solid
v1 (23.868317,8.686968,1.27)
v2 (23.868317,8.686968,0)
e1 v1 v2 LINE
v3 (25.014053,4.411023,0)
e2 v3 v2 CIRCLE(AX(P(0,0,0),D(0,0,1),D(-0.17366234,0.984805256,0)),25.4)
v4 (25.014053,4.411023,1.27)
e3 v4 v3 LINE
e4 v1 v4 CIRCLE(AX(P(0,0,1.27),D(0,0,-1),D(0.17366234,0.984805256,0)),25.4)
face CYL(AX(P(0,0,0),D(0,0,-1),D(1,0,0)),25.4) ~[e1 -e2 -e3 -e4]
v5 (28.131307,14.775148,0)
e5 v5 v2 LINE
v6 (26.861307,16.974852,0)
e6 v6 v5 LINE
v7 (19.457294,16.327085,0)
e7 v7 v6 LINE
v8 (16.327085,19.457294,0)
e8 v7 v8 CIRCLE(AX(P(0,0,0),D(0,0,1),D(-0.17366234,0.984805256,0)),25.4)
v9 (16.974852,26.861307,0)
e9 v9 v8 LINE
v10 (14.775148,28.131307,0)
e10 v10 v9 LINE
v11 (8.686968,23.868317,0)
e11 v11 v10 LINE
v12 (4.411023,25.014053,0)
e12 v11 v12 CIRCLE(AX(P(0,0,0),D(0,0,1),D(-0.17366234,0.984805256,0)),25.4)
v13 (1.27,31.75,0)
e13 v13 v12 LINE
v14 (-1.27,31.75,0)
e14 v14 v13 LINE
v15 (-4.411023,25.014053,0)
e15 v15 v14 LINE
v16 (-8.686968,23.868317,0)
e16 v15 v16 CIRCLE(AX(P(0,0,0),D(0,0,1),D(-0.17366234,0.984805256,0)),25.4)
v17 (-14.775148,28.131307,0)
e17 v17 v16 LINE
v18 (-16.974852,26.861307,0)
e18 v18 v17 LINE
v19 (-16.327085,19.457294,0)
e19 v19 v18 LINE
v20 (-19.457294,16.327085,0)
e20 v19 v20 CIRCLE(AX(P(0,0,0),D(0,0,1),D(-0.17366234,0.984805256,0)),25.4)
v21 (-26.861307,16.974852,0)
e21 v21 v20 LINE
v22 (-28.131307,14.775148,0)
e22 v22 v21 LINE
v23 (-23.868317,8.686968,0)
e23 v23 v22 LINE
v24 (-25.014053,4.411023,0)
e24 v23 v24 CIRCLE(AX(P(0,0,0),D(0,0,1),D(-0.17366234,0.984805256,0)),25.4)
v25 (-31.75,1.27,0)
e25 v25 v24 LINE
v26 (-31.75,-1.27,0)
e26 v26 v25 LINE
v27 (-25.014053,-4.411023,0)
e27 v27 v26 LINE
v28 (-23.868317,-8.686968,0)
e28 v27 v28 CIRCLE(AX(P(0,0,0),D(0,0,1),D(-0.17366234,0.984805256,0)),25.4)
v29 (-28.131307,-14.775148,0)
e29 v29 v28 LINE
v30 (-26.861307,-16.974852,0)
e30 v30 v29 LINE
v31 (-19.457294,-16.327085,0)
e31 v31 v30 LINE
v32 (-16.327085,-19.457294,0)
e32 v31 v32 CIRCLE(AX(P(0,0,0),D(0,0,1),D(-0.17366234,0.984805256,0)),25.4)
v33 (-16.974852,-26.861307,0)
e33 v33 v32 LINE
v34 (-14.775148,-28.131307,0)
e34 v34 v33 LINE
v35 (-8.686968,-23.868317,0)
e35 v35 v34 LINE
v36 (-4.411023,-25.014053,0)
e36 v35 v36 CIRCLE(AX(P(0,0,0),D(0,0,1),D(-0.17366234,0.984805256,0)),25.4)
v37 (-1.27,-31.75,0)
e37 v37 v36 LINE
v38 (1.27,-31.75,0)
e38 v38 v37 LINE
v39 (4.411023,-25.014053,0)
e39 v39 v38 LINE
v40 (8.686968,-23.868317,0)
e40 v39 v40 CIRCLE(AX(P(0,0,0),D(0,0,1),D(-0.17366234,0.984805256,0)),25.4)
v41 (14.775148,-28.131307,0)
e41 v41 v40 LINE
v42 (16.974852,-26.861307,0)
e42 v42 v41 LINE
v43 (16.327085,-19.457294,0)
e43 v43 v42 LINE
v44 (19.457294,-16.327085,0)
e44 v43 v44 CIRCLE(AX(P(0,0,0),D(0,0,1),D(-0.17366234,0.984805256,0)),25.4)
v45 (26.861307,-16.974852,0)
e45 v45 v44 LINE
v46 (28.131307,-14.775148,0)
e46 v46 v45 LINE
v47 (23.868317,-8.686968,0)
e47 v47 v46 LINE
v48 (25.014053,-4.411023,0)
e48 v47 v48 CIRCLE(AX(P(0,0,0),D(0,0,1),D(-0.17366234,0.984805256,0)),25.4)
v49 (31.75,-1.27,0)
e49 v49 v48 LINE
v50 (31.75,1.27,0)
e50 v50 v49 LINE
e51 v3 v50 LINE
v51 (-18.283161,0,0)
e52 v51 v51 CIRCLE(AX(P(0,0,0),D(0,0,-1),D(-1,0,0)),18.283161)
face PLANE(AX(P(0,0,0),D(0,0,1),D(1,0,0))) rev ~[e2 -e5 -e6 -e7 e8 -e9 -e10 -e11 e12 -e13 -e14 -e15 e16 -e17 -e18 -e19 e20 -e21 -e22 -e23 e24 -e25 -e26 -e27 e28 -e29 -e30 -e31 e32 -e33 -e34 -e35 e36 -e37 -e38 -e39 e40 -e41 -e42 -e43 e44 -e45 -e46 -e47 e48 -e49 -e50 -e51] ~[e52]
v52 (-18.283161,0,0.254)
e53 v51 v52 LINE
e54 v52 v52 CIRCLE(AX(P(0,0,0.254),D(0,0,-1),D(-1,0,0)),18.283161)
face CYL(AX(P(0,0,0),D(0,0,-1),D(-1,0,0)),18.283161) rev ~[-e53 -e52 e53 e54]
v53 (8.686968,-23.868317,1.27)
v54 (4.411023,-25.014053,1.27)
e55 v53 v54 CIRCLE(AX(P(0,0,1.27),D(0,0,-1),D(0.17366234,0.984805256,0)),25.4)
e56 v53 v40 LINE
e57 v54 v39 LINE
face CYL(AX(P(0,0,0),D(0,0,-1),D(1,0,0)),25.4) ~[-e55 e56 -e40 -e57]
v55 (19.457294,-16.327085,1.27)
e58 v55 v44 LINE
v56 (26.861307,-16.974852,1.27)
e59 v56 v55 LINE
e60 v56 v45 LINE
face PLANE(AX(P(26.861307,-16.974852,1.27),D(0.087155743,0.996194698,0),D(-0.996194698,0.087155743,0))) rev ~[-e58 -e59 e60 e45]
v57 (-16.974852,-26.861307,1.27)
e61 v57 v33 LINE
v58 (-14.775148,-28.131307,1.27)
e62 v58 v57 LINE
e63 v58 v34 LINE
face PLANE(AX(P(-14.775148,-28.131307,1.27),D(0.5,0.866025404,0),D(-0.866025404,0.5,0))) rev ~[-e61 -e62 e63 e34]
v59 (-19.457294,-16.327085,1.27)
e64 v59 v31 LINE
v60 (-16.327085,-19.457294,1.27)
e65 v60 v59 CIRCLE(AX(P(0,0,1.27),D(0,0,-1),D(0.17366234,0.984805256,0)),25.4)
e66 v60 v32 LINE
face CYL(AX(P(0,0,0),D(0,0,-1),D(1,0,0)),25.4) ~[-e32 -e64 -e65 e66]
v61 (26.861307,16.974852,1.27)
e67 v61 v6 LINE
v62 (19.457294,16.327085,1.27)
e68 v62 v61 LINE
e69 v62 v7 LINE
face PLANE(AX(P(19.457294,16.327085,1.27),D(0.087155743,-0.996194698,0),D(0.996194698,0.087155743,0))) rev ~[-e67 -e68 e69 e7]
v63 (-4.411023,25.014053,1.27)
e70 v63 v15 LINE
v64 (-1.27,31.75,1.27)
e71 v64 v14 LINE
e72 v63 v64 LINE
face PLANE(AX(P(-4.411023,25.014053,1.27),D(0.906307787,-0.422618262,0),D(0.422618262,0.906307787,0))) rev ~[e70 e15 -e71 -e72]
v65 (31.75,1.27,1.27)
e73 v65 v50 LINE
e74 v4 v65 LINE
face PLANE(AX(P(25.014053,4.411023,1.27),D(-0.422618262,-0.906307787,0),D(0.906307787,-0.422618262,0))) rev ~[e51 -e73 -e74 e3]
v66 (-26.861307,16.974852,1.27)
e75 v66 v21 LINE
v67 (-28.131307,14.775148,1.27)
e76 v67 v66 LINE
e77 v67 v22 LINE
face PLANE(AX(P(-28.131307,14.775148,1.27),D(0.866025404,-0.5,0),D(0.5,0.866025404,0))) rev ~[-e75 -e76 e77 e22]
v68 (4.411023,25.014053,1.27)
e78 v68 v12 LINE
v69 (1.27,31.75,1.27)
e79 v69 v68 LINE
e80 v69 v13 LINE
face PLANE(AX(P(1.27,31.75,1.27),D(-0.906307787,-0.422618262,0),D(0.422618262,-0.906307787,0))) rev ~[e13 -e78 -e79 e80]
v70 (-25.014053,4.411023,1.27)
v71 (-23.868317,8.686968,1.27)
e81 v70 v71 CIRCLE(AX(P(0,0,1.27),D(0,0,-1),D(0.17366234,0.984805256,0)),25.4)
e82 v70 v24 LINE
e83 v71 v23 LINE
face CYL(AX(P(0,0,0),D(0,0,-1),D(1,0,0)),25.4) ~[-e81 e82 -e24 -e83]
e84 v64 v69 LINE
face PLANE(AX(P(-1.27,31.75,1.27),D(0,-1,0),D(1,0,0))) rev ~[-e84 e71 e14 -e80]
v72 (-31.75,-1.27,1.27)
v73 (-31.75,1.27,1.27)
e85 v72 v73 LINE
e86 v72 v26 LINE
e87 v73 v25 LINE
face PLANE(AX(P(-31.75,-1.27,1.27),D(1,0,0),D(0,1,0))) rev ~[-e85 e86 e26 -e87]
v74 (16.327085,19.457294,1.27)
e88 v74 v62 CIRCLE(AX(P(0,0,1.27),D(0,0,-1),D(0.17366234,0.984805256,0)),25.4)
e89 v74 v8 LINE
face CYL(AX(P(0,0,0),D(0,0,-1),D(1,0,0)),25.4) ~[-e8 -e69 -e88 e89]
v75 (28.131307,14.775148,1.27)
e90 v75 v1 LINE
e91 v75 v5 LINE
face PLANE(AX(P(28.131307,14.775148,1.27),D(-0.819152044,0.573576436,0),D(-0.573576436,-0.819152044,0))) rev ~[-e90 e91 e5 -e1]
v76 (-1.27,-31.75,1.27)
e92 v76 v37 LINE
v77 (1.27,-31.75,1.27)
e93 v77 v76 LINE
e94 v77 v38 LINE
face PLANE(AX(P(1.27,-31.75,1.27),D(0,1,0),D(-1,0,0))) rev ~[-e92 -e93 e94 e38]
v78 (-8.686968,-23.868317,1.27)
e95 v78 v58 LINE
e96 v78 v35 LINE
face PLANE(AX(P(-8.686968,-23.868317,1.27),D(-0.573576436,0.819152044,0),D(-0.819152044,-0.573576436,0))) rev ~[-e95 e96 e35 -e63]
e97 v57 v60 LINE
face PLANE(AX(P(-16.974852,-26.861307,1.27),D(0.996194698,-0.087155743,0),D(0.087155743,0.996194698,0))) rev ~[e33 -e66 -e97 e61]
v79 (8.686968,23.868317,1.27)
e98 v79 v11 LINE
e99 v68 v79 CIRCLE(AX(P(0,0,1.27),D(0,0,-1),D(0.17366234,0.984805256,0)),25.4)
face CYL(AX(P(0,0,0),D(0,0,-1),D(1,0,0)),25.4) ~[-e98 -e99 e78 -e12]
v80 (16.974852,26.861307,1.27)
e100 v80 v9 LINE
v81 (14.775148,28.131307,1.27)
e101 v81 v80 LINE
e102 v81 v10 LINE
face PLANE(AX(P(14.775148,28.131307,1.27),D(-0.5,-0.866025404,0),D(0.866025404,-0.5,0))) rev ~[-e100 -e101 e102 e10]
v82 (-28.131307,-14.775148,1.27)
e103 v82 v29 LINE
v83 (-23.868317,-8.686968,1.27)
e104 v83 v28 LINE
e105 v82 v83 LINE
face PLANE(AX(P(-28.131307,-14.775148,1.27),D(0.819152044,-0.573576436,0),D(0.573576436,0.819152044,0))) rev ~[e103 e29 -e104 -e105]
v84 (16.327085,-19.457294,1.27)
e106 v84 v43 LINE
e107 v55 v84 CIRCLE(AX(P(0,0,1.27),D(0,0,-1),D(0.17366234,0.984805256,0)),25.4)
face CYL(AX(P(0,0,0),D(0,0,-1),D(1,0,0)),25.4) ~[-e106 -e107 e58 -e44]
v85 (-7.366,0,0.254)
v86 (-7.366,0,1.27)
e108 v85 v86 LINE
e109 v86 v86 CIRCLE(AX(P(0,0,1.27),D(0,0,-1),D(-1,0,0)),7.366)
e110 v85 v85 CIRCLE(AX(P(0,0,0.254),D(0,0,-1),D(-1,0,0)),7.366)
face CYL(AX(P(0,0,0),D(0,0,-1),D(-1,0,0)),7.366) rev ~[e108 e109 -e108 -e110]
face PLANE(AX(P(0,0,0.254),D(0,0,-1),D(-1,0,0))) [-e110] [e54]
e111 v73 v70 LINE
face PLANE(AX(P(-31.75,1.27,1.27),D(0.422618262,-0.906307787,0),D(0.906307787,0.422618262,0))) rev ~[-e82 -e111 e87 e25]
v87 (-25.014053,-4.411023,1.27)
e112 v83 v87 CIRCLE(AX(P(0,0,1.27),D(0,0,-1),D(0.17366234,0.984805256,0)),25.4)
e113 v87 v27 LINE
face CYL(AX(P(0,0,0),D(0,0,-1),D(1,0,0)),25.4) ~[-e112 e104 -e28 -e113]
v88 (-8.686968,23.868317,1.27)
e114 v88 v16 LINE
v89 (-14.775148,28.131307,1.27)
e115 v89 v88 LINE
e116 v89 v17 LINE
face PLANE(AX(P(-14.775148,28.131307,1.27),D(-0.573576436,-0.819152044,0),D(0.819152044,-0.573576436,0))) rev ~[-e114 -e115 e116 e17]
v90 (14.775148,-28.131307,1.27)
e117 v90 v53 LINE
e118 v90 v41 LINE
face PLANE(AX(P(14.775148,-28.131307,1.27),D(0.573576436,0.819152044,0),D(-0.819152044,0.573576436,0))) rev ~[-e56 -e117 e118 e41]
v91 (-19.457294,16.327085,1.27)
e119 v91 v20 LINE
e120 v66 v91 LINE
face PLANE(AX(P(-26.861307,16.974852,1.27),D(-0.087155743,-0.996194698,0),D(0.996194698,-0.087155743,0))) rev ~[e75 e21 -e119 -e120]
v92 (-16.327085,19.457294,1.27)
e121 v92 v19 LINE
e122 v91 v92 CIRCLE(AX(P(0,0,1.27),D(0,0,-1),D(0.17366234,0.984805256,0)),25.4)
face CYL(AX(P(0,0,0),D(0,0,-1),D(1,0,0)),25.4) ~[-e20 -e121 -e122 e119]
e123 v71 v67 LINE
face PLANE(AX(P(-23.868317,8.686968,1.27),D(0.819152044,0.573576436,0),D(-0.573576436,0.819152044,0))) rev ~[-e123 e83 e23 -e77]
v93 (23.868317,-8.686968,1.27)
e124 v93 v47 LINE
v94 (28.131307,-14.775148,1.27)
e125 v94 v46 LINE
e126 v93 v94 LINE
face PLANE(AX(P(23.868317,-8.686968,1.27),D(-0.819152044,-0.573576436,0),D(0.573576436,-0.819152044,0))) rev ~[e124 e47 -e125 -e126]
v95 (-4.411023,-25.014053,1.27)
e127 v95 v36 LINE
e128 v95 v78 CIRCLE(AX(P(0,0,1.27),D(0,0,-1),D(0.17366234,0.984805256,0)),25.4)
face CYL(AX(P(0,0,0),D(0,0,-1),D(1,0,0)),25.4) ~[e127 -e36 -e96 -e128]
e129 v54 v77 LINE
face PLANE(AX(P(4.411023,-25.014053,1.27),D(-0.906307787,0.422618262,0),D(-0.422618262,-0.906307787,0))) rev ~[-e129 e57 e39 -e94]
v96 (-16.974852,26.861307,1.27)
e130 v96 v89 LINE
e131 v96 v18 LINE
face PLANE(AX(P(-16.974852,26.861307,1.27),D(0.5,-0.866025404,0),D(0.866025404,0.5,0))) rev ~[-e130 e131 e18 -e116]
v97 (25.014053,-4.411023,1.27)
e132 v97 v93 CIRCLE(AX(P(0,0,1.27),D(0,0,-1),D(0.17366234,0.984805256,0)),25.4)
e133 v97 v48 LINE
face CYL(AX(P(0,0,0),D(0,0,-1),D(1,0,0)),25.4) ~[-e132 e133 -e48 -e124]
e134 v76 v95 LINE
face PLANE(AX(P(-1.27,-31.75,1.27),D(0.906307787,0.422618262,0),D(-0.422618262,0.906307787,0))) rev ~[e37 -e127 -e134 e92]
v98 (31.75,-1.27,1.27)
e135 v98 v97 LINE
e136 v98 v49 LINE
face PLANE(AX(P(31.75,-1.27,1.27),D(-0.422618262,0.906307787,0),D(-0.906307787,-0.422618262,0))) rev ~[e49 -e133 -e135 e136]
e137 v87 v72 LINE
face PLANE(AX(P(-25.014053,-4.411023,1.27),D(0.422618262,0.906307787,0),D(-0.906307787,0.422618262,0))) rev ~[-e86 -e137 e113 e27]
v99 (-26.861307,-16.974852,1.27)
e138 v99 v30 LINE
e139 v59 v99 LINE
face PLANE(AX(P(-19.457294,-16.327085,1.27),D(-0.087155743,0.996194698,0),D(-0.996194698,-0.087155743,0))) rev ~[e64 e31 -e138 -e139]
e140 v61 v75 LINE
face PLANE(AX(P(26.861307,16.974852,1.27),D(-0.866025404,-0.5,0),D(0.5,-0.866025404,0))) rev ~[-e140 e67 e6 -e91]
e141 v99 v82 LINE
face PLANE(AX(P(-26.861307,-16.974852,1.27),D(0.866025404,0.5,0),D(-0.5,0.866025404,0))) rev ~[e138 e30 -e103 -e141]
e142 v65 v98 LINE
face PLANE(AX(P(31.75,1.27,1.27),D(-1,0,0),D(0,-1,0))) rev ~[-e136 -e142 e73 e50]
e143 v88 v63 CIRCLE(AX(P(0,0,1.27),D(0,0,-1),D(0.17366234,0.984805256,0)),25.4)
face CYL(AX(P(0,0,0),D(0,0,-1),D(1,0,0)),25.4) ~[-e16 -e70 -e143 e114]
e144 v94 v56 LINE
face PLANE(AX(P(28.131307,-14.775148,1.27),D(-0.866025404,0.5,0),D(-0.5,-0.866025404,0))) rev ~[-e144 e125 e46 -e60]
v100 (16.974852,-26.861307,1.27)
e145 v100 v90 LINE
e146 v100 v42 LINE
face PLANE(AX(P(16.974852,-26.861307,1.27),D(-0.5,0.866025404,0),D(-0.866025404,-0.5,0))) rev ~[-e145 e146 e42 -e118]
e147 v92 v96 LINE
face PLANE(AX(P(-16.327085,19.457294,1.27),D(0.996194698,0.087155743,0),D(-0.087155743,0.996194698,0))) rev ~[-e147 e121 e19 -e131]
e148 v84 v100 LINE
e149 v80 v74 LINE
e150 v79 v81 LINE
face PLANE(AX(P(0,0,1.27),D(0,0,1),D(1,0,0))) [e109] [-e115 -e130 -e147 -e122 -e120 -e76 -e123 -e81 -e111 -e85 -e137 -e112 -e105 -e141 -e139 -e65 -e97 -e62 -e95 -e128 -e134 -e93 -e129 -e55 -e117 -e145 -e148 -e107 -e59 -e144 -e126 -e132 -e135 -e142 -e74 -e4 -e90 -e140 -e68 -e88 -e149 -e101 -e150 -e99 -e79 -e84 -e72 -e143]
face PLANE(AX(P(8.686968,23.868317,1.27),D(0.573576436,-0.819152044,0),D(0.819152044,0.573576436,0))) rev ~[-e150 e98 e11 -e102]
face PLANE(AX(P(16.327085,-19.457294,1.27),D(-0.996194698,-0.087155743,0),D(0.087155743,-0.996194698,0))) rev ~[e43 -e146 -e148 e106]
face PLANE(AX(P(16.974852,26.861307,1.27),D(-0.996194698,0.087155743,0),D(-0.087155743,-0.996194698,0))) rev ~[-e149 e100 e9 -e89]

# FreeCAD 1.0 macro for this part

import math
import FreeCAD as App
import Part
import Sketcher
from FreeCAD import Vector
Q = App.Units.Quantity

doc = App.newDocument("Part")
body = doc.addObject("PartDesign::Body", "Body")

# Sketch on XY plane
sketch1 = body.newObject("Sketcher::SketchObject", "Sketch")
sketch1.AttachmentSupport = (doc.getObject("XY_Plane"), [""])
sketch1.MapMode = "FlatFace"
sketch1.addGeometry(Part.Circle(Vector(0, 0, 0), Vector(0, 0, 1), 25), False)
sketch1.addConstraint(Sketcher.Constraint("Coincident", 0, 3, -1, 1))
sketch1.addConstraint(Sketcher.Constraint("Diameter", 0, Q("2 in")))
pad1 = body.newObject("PartDesign::Pad", "Pad")
pad1.Profile = sketch1
pad1.Length = Q("0.05 in")

# Sketch on XY plane
sketch2 = body.newObject("Sketcher::SketchObject", "Sketch001")
sketch2.AttachmentSupport = (doc.getObject("XY_Plane"), [""])
sketch2.MapMode = "FlatFace"
sketch2.AttachmentOffset = App.Placement(Vector(0, 0, 0.05 * 25.4), App.Rotation())
sketch2.addGeometry(Part.LineSegment(Vector(1.3, 31.8, 0), Vector(-1.3, 31.8, 0)), False)
sketch2.addGeometry(Part.LineSegment(Vector(-1.3, 31.8, 0), Vector(-4.4, 25, 0)), False)
sketch2.addGeometry(Part.ArcOfCircle(Part.Circle(Vector(0, 0, 0), Vector(0, 0, 1), 25.4), math.radians(80), math.radians(100)), False)
sketch2.addGeometry(Part.LineSegment(Vector(4.4, 25, 0), Vector(1.3, 31.8, 0)), False)
sketch2.addConstraint(Sketcher.Constraint("Coincident", 0, 2, 1, 1))
sketch2.addConstraint(Sketcher.Constraint("Coincident", 1, 2, 2, 2))
sketch2.addConstraint(Sketcher.Constraint("Coincident", 2, 1, 3, 1))
sketch2.addConstraint(Sketcher.Constraint("Coincident", 3, 2, 0, 1))
sketch2.addConstraint(Sketcher.Constraint("Horizontal", 0))
sketch2.addConstraint(Sketcher.Constraint("Coincident", 2, 3, -1, 1))
sketch2.addConstraint(Sketcher.Constraint("Horizontal", 1, 2, 2, 1))
sketch2.addConstraint(Sketcher.Constraint("Equal", 1, 3))
sketch2.addConstraint(Sketcher.Constraint("Radius", 2, Q("1 in")))
sketch2.addConstraint(Sketcher.Constraint("DistanceX", 0, 2, 0, 1, Q("0.1 in")))
sketch2.addConstraint(Sketcher.Constraint("Angle", 1, Q("-115 deg")))
sketch2.addConstraint(Sketcher.Constraint("DistanceY", -1, 1, 0, 2, Q("1.25 in")))
pad2 = body.newObject("PartDesign::Pad", "Pad001")
pad2.Profile = sketch2
pad2.Length = Q("0.05 in")
pad2.Reversed = True

# Sketch on XY plane
sketch3 = body.newObject("Sketcher::SketchObject", "Sketch002")
sketch3.AttachmentSupport = (doc.getObject("XY_Plane"), [""])
sketch3.MapMode = "FlatFace"
sketch3.addGeometry(Part.Circle(Vector(0, 0, 0), Vector(0, 0, 1), 7), False)
sketch3.addConstraint(Sketcher.Constraint("Coincident", 0, 3, -1, 1))
sketch3.addConstraint(Sketcher.Constraint("Diameter", 0, Q("0.58 in")))
pocket1 = body.newObject("PartDesign::Pocket", "Pocket")
pocket1.Profile = sketch3
pocket1.Length = 10
pocket1.Reversed = True
doc.recompute()

polarpattern = body.newObject("PartDesign::PolarPattern", "PolarPattern")
polarpattern.Originals = [pad2]
polarpattern.Axis = (doc.getObject("Z_Axis"), [""])
polarpattern.Angle = 360
polarpattern.Occurrences = 12
body.Tip = polarpattern

# Sketch on XY plane
sketch4 = body.newObject("Sketcher::SketchObject", "Sketch003")
sketch4.AttachmentSupport = (doc.getObject("XY_Plane"), [""])
sketch4.MapMode = "FlatFace"
sketch4.addGeometry(Part.Circle(Vector(0, 0, 0), Vector(0, 0, 1), 18), False)
sketch4.addConstraint(Sketcher.Constraint("Coincident", 0, 3, -1, 1))
sketch4.addConstraint(Sketcher.Constraint("Diameter", 0, Q("36.566322 mm")))
pocket2 = body.newObject("PartDesign::Pocket", "Pocket001")
pocket2.Profile = sketch4
pocket2.Length = Q("0.01 in")
pocket2.Reversed = True

doc.recompute()
